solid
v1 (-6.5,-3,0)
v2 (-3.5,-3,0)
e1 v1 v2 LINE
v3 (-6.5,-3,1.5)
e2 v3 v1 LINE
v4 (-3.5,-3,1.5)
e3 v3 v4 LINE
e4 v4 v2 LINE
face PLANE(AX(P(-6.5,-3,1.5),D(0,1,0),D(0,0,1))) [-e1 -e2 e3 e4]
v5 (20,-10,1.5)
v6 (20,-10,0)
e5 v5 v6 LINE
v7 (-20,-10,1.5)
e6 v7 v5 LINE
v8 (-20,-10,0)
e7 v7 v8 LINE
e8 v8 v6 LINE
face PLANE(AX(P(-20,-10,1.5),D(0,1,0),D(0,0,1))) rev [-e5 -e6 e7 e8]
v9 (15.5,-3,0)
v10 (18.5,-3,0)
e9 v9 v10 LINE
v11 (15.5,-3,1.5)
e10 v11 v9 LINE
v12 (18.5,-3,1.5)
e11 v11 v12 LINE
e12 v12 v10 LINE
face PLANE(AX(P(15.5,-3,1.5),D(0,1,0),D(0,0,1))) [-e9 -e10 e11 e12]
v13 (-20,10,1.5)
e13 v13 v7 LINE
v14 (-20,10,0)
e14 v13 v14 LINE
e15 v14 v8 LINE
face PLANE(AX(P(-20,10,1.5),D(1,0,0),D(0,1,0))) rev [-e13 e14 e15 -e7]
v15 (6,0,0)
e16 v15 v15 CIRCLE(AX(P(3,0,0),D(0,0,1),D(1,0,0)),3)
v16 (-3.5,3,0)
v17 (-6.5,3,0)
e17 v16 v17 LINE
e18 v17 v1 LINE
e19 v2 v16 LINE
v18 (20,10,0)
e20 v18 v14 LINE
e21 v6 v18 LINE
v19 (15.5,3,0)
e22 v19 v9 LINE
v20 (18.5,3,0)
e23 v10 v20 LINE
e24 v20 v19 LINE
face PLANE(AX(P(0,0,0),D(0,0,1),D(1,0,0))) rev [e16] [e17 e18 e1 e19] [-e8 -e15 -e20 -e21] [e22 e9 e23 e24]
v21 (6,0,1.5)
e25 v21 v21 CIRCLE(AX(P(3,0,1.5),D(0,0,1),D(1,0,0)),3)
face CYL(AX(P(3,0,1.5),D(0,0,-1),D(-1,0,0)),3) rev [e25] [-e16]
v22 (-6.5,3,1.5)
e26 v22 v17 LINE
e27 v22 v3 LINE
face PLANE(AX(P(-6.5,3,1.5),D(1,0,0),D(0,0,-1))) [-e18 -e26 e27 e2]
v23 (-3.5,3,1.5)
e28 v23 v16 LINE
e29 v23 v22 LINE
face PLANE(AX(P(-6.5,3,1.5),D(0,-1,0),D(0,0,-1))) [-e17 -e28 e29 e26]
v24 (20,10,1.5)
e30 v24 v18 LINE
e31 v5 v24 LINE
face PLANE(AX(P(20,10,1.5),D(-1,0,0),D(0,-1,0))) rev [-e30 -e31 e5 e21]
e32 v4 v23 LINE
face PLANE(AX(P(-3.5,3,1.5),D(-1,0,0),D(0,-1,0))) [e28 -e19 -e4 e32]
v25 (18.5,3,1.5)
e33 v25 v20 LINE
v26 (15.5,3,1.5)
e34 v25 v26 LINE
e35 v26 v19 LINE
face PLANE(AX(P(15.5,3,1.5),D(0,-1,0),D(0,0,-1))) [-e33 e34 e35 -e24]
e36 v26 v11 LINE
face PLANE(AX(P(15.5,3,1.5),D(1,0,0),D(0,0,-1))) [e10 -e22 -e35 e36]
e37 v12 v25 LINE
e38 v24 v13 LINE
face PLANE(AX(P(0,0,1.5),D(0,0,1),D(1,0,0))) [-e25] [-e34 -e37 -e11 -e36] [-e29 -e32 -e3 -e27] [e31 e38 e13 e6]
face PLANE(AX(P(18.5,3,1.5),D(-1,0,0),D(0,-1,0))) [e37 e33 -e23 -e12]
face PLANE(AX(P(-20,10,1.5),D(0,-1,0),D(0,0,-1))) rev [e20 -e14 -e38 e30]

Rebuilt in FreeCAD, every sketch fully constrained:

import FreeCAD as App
import Part
import Sketcher
from FreeCAD import Vector

doc = App.newDocument("Part")
params = doc.addObject("Spreadsheet::Sheet", "Params")
for row, (alias, value) in enumerate([
    ("sketch1_diameter", "6 mm"),
    ("sketch1_width", "40 mm"),
    ("sketch1_width2", "3 mm"),
    ("sketch1_height", "20 mm"),
    ("sketch1_height2", "6 mm"),
    ("pad1_length", "1.5 mm"),
], start=1):
    params.set(f"A{row}", alias)
    params.set(f"B{row}", "=" + value)
    params.setAlias(f"B{row}", alias)

body = doc.addObject("PartDesign::Body", "Body")

# Sketch on XY plane
sketch1 = body.newObject("Sketcher::SketchObject", "Sketch")
sketch1.AttachmentSupport = (doc.getObject("XY_Plane"), [""])
sketch1.MapMode = "FlatFace"
sketch1.addGeometry([
    Part.LineSegment(Vector(-20, 10, 0), Vector(-20, -10, 0)),  # 0
    Part.LineSegment(Vector(-20, -10, 0), Vector(20, -10, 0)),  # 1
    Part.LineSegment(Vector(20, -10, 0), Vector(20, 10, 0)),  # 2
    Part.LineSegment(Vector(20, 10, 0), Vector(-20, 10, 0)),  # 3
    Part.LineSegment(Vector(-3.5, -3, 0), Vector(-6.5, -3, 0)),  # 4
    Part.LineSegment(Vector(-6.5, -3, 0), Vector(-6.5, 3, 0)),  # 5
    Part.LineSegment(Vector(-6.5, 3, 0), Vector(-3.5, 3, 0)),  # 6
    Part.LineSegment(Vector(-3.5, 3, 0), Vector(-3.5, -3, 0)),  # 7
    Part.Circle(Vector(3, 0, 0), Vector(0, 0, 1), 3),  # 8
    Part.LineSegment(Vector(18.5, -3, 0), Vector(15.5, -3, 0)),  # 9
    Part.LineSegment(Vector(15.5, -3, 0), Vector(15.5, 3, 0)),  # 10
    Part.LineSegment(Vector(15.5, 3, 0), Vector(18.5, 3, 0)),  # 11
    Part.LineSegment(Vector(18.5, 3, 0), Vector(18.5, -3, 0)),  # 12
], False)
sketch1.addConstraint([
    Sketcher.Constraint("Coincident", 0, 2, 1, 1),
    Sketcher.Constraint("Coincident", 1, 2, 2, 1),
    Sketcher.Constraint("Coincident", 2, 2, 3, 1),
    Sketcher.Constraint("Coincident", 3, 2, 0, 1),
    Sketcher.Constraint("Coincident", 4, 2, 5, 1),
    Sketcher.Constraint("Coincident", 5, 2, 6, 1),
    Sketcher.Constraint("Coincident", 6, 2, 7, 1),
    Sketcher.Constraint("Coincident", 7, 2, 4, 1),
    Sketcher.Constraint("Coincident", 9, 2, 10, 1),
    Sketcher.Constraint("Coincident", 10, 2, 11, 1),
    Sketcher.Constraint("Coincident", 11, 2, 12, 1),
    Sketcher.Constraint("Coincident", 12, 2, 9, 1),
    Sketcher.Constraint("Vertical", 0),
    Sketcher.Constraint("Horizontal", 1),
    Sketcher.Constraint("Vertical", 2),
    Sketcher.Constraint("Horizontal", 3),
    Sketcher.Constraint("Horizontal", 4),
    Sketcher.Constraint("Vertical", 5),
    Sketcher.Constraint("Horizontal", 6),
    Sketcher.Constraint("Vertical", 7),
    Sketcher.Constraint("Horizontal", 9),
    Sketcher.Constraint("Vertical", 10),
    Sketcher.Constraint("Horizontal", 11),
    Sketcher.Constraint("Vertical", 12),
    Sketcher.Constraint("Symmetric", 0, 2, 2, 2, -1, 1),
    Sketcher.Constraint("PointOnObject", 8, 3, -1),
    Sketcher.Constraint("Horizontal", 7, 2, 9, 2),
    Sketcher.Constraint("Horizontal", 6, 2, 10, 2),
    Sketcher.Constraint("Equal", 6, 9),
    Sketcher.Constraint("Diameter", 8, 6.0),
    Sketcher.Constraint("DistanceX", 1, 1, 1, 2, 40.0),
    Sketcher.Constraint("DistanceX", 4, 2, 4, 1, 3.0),
    Sketcher.Constraint("DistanceY", 0, 2, 0, 1, 20.0),
    Sketcher.Constraint("DistanceY", 5, 1, 5, 2, 6.0),
    Sketcher.Constraint("DistanceX", -1, 1, 8, 3, 3.0),
    Sketcher.Constraint("DistanceY", 4, 2, -1, 1, 3.0),
    Sketcher.Constraint("DistanceX", 7, 2, 9, 2, 19.0),
    Sketcher.Constraint("DistanceX", 4, 2, -1, 1, 6.5),
])
sketch1.setExpression("Constraints[29]", "Params.sketch1_diameter")
sketch1.setExpression("Constraints[30]", "Params.sketch1_width")
sketch1.setExpression("Constraints[31]", "Params.sketch1_width2")
sketch1.setExpression("Constraints[32]", "Params.sketch1_height")
sketch1.setExpression("Constraints[33]", "Params.sketch1_height2")
pad1 = body.newObject("PartDesign::Pad", "Pad")
pad1.Profile = sketch1
pad1.setExpression("Length", "Params.pad1_length")

doc.recompute()
